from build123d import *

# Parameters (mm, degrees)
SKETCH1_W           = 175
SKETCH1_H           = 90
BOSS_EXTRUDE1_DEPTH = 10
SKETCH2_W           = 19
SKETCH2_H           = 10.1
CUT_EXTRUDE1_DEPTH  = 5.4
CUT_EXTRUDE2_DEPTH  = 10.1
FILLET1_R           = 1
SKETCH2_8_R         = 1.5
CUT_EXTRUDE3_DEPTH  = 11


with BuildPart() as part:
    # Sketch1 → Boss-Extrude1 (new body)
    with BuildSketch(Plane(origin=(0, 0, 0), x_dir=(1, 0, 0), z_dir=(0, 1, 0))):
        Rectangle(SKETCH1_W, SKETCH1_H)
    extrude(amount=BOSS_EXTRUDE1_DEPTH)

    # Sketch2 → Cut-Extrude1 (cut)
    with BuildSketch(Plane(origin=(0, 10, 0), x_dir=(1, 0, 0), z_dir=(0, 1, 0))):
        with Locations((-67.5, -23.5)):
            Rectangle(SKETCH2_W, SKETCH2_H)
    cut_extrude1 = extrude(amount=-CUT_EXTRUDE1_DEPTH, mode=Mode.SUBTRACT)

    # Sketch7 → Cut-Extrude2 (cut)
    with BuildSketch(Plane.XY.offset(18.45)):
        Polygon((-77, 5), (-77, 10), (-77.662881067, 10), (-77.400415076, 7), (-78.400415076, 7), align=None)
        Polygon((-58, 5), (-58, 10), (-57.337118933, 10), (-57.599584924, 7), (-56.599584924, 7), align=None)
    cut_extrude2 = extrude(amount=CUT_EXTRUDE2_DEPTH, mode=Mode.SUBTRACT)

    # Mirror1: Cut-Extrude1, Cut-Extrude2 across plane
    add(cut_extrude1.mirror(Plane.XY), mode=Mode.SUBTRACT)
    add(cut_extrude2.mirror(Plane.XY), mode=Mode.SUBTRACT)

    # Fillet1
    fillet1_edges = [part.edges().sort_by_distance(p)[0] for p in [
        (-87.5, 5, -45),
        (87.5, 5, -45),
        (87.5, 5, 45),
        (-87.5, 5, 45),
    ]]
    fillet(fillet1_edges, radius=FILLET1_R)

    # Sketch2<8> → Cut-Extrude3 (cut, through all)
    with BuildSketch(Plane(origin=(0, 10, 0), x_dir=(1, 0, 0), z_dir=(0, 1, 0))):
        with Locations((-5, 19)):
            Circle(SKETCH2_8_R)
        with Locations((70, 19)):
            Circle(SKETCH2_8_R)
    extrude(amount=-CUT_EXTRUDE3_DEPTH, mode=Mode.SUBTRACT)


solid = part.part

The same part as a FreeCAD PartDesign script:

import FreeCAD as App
import Part
import Sketcher

V = App.Vector
Q = App.Units.Quantity


def edges_at(feature, points):
    """Names of the edges that pass closest to the given points."""
    edges = feature.Shape.Edges
    near = lambda p: min(range(len(edges)), key=lambda i: edges[i].distToShape(Part.Vertex(*p))[0])
    return sorted({f"Edge{near(p) + 1}" for p in points})


def add_polygon(sketch, points):
    """Adds a closed chain of lines whose ends are joined by coincident constraints."""
    first, n = sketch.GeometryCount, len(points)
    for a, b in zip(points, points[1:] + points[:1]):
        sketch.addGeometry(Part.LineSegment(App.Vector(*a, 0), App.Vector(*b, 0)), False)
    for i in range(n):
        sketch.addConstraint(Sketcher.Constraint("Coincident", first + i, 2, first + (i + 1) % n, 1))

doc = App.newDocument("Part")
body = doc.addObject("PartDesign::Body", "Body")

sketch1 = body.newObject("Sketcher::SketchObject", "Sketch")
sketch1.AttachmentSupport = (doc.getObject("XZ_Plane"), [""])
sketch1.MapMode = "FlatFace"
add_polygon(sketch1, [(-87.5, -45), (-87.5, 45), (87.5, 45), (87.5, -45)])
sketch1.addConstraint(Sketcher.Constraint("Vertical", 0))
sketch1.addConstraint(Sketcher.Constraint("Horizontal", 1))
sketch1.addConstraint(Sketcher.Constraint("Vertical", 2))
sketch1.addConstraint(Sketcher.Constraint("Horizontal", 3))
sketch1.addConstraint(Sketcher.Constraint("Symmetric", 0, 2, 2, 2, -1, 1))
sketch1.addConstraint(Sketcher.Constraint("DistanceX", 1, 1, 1, 2, 175.0))
sketch1.addConstraint(Sketcher.Constraint("DistanceY", 0, 1, 0, 2, 90.0))
pad1 = body.newObject("PartDesign::Pad", "Pad")
pad1.Profile = sketch1
pad1.Length = 10
pad1.Reversed = True

sketch2 = body.newObject("Sketcher::SketchObject", "Sketch001")
sketch2.AttachmentSupport = (doc.getObject("XZ_Plane"), [""])
sketch2.MapMode = "FlatFace"
sketch2.AttachmentOffset = App.Placement(V(0, 0, -10), App.Rotation())
add_polygon(sketch2, [(-77, 18.45), (-77, 28.55), (-58, 28.55), (-58, 18.45)])
sketch2.addConstraint(Sketcher.Constraint("Vertical", 0))
sketch2.addConstraint(Sketcher.Constraint("Horizontal", 1))
sketch2.addConstraint(Sketcher.Constraint("Vertical", 2))
sketch2.addConstraint(Sketcher.Constraint("Horizontal", 3))
sketch2.addConstraint(Sketcher.Constraint("DistanceX", 1, 1, 1, 2, 19.0))
sketch2.addConstraint(Sketcher.Constraint("DistanceY", 0, 1, 0, 2, 10.1))
sketch2.addConstraint(Sketcher.Constraint("DistanceX", 0, 2, -1, 1, 77.0))
sketch2.addConstraint(Sketcher.Constraint("DistanceY", -1, 1, 0, 2, 28.55))
pocket1 = body.newObject("PartDesign::Pocket", "Pocket")
pocket1.Profile = sketch2
pocket1.Length = 5.4
pocket1.Reversed = True

sketch3 = body.newObject("Sketcher::SketchObject", "Sketch002")
sketch3.AttachmentSupport = (doc.getObject("XY_Plane"), [""])
sketch3.MapMode = "FlatFace"
sketch3.AttachmentOffset = App.Placement(V(0, 0, 18.45), App.Rotation())
add_polygon(sketch3, [(-77, 5), (-77, 10), (-77.662881, 10), (-77.400415, 7), (-78.400415, 7)])
add_polygon(sketch3, [(-58, 10), (-58, 5), (-56.599585, 7), (-57.599585, 7), (-57.337119, 10)])
sketch3.addConstraint(Sketcher.Constraint("Vertical", 0))
sketch3.addConstraint(Sketcher.Constraint("Horizontal", 1))
sketch3.addConstraint(Sketcher.Constraint("Horizontal", 3))
sketch3.addConstraint(Sketcher.Constraint("Vertical", 5))
sketch3.addConstraint(Sketcher.Constraint("Horizontal", 7))
sketch3.addConstraint(Sketcher.Constraint("Horizontal", 9))
sketch3.addConstraint(Sketcher.Constraint("Horizontal", 4, 2, 5, 2))
sketch3.addConstraint(Sketcher.Constraint("Horizontal", 3, 2, 6, 2))
sketch3.addConstraint(Sketcher.Constraint("Horizontal", 1, 2, 8, 2))
sketch3.addConstraint(Sketcher.Constraint("Equal", 3, 7))
sketch3.addConstraint(Sketcher.Constraint("Equal", 1, 9))
sketch3.addConstraint(Sketcher.Constraint("Equal", 4, 6))
sketch3.addConstraint(Sketcher.Constraint("DistanceX", 3, 2, 3, 1, 1.0))
sketch3.addConstraint(Sketcher.Constraint("DistanceY", 0, 1, 0, 2, 5.0))
sketch3.addConstraint(Sketcher.Constraint("Angle", 2, Q("-85 deg")))
sketch3.addConstraint(Sketcher.Constraint("Angle", 4, Q("-55 deg")))
sketch3.addConstraint(Sketcher.Constraint("DistanceX", 0, 2, -1, 1, 77.0))
sketch3.addConstraint(Sketcher.Constraint("DistanceY", -1, 1, 0, 2, 10.0))
sketch3.addConstraint(Sketcher.Constraint("DistanceY", -1, 1, 2, 2, 7.0))
sketch3.addConstraint(Sketcher.Constraint("DistanceX", 5, 2, -1, 1, 58.0))
pocket2 = body.newObject("PartDesign::Pocket", "Pocket001")
pocket2.Profile = sketch3
pocket2.Length = 10.1
pocket2.Reversed = True
doc.recompute()

mirrored = body.newObject("PartDesign::Mirrored", "Mirrored")
mirrored.Originals = [pocket1, pocket2]
mirrored.MirrorPlane = (doc.getObject("XY_Plane"), [""])
body.Tip = mirrored
doc.recompute()

fillet = body.newObject("PartDesign::Fillet", "Fillet")
fillet.Base = (mirrored, edges_at(mirrored, [
    (-87.5, 5, -45),
    (87.5, 5, -45),
    (87.5, 5, 45),
    (-87.5, 5, 45),
]))
fillet.Radius = 1

sketch4 = body.newObject("Sketcher::SketchObject", "Sketch003")
sketch4.AttachmentSupport = (doc.getObject("XZ_Plane"), [""])
sketch4.MapMode = "FlatFace"
sketch4.AttachmentOffset = App.Placement(V(0, 0, -10), App.Rotation())
sketch4.addGeometry(Part.Circle(V(-5, -19, 0), V(0, 0, 1), 1.5), False)
sketch4.addGeometry(Part.Circle(V(70, -19, 0), V(0, 0, 1), 1.5), False)
sketch4.addConstraint(Sketcher.Constraint("Equal", 0, 1))
sketch4.addConstraint(Sketcher.Constraint("Horizontal", 0, 3, 1, 3))
sketch4.addConstraint(Sketcher.Constraint("Diameter", 0, 3.0))
sketch4.addConstraint(Sketcher.Constraint("DistanceX", 0, 3, -1, 1, 5.0))
sketch4.addConstraint(Sketcher.Constraint("DistanceY", 0, 3, -1, 1, 19.0))
sketch4.addConstraint(Sketcher.Constraint("DistanceX", -1, 1, 1, 3, 70.0))
pocket3 = body.newObject("PartDesign::Pocket", "Pocket002")
pocket3.Profile = sketch4
pocket3.Type = "ThroughAll"
pocket3.Reversed = True

doc.recompute()
